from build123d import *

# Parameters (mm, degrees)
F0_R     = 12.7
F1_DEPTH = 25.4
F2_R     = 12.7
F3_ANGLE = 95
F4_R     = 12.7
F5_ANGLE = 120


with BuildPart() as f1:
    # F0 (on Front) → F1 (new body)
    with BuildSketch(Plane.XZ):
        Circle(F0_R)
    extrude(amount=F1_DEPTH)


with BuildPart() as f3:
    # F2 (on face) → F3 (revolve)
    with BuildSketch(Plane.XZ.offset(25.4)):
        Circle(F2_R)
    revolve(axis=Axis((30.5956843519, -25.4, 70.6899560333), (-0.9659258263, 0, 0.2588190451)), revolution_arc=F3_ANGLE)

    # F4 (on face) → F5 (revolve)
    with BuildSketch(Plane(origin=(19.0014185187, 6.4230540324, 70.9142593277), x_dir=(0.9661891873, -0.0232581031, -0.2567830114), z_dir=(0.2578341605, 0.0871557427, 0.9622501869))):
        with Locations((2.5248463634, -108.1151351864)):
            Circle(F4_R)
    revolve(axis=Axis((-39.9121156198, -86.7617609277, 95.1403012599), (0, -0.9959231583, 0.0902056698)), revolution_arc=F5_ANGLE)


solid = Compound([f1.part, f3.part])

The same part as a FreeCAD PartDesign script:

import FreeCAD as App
import Part
import Sketcher

V = App.Vector
Q = App.Units.Quantity

doc = App.newDocument("Part")
body = doc.addObject("PartDesign::Body", "Body")

sketch1 = body.newObject("Sketcher::SketchObject", "Sketch")
sketch1.AttachmentSupport = (doc.getObject("XZ_Plane"), [""])
sketch1.MapMode = "FlatFace"
sketch1.addGeometry(Part.Circle(V(0, 0, 0), V(0, 0, 1), 13), False)
sketch1.addConstraint([
    Sketcher.Constraint("Coincident", 0, 3, -1, 1),
    Sketcher.Constraint("Diameter", 0, Q("1 in")),
])
pad1 = body.newObject("PartDesign::Pad", "Pad")
pad1.Profile = sketch1
pad1.Length = Q("1 in")
body2 = doc.addObject("PartDesign::Body", "Body001")

sketch2 = body2.newObject("Sketcher::SketchObject", "Sketch001")
sketch2.AttachmentSupport = (doc.getObject("XZ_Plane001"), [""])
sketch2.MapMode = "FlatFace"
sketch2.AttachmentOffset = App.Placement(V(0, 0, 1 * 25.4), App.Rotation())
sketch2.addGeometry(Part.Circle(V(0, 0, 0), V(0, 0, 1), 13), False)
sketch2.addGeometry(Part.LineSegment(V(20, 74, 0), V(10, 76, 0)), True)
sketch2.addConstraint([
    Sketcher.Constraint("Coincident", 0, 3, -1, 1),
    Sketcher.Constraint("Diameter", 0, Q("1 in")),
    Sketcher.Constraint("Angle", 1, Q("165 deg")),
    Sketcher.Constraint("Distance", 1, Q("10 mm")),
    Sketcher.Constraint("DistanceX", -1, 1, 1, 1, Q("19.722011 mm")),
    Sketcher.Constraint("DistanceY", -1, 1, 1, 2, Q("76.191738 mm")),
])
revolution = body2.newObject("PartDesign::Revolution", "Revolution")
revolution.Profile = sketch2
revolution.ReferenceAxis = (sketch2, ["Axis0"])
revolution.Angle = 95

sketch3 = body2.newObject("Sketcher::SketchObject", "Sketch002")
sketch3.Placement = App.Placement(V(19.001419, 6.423054, 70.914259), App.Rotation(V(0.966189187, -0.023258103, -0.256783011), V(0, 0.995923158, -0.09020567), V(0.257834161, 0.087155743, 0.962250187), "ZXY"))
sketch3.addGeometry(Part.Circle(V(3, -108, 0), V(0, 0, 1), 13), False)
sketch3.addGeometry(Part.LineSegment(V(-61, -108, 0), V(-61, -118, 0)), True)
sketch3.addConstraint([
    Sketcher.Constraint("Vertical", 1),
    Sketcher.Constraint("Horizontal", 0, 3, 1, 1),
    Sketcher.Constraint("Diameter", 0, Q("1 in")),
    Sketcher.Constraint("DistanceX", 1, 1, 0, 3, Q("2.5 in")),
    Sketcher.Constraint("DistanceY", 1, 2, 1, 1, Q("10 mm")),
    Sketcher.Constraint("DistanceX", -1, 1, 0, 3, Q("2.524846 mm")),
    Sketcher.Constraint("DistanceY", 0, 3, -1, 1, Q("108.115135 mm")),
])
revolution2 = body2.newObject("PartDesign::Revolution", "Revolution001")
revolution2.Profile = sketch3
revolution2.ReferenceAxis = (sketch3, ["Axis0"])
revolution2.Angle = 120

doc.recompute()
